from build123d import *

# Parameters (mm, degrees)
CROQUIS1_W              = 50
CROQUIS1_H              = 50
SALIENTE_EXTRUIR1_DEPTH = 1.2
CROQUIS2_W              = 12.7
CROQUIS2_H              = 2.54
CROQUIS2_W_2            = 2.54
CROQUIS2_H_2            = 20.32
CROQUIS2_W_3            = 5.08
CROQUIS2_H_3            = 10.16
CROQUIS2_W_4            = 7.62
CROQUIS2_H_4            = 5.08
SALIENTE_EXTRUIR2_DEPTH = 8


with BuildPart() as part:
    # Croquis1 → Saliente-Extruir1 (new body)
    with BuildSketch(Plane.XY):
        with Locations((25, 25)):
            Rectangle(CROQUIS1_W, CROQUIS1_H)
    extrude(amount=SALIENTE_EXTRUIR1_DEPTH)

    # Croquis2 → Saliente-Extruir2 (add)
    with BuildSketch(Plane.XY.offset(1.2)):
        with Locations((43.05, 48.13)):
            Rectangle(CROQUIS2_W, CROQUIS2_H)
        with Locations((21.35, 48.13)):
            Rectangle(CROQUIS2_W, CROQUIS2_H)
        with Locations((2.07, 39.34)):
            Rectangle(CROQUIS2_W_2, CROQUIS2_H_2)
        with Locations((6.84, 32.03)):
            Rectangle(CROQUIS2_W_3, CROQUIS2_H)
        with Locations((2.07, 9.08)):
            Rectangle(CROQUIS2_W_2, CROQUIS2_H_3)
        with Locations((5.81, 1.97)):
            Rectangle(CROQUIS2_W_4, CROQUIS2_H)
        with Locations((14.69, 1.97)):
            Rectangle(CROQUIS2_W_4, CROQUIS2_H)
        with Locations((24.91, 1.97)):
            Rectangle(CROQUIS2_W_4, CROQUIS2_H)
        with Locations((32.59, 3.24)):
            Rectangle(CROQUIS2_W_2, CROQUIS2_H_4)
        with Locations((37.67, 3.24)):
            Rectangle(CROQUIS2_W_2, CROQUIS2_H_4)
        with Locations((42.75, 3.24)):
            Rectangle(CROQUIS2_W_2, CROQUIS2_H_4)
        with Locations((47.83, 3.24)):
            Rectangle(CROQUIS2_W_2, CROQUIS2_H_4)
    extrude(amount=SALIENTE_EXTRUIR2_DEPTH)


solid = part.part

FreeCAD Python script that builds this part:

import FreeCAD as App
import Part
import Sketcher
from FreeCAD import Vector
Q = App.Units.Quantity

doc = App.newDocument("Part")
params = doc.addObject("Spreadsheet::Sheet", "Params")
for row, (alias, value) in enumerate([
    ("pad1_length", "1.2 mm"),
    ("sketch2_width", "0.5 in"),
    ("sketch2_width2", "0.1 in"),
    ("sketch2_width3", "0.2 in"),
    ("sketch2_width4", "0.3 in"),
    ("sketch2_height", "0.8 in"),
    ("pad2_length", "8 mm"),
], start=1):
    params.set(f"A{row}", alias)
    params.set(f"B{row}", "=" + value)
    params.setAlias(f"B{row}", alias)

body = doc.addObject("PartDesign::Body", "Body")

# Sketch on XY plane
sketch1 = body.newObject("Sketcher::SketchObject", "Sketch")
sketch1.AttachmentSupport = (doc.getObject("XY_Plane"), [""])
sketch1.MapMode = "FlatFace"
sketch1.addGeometry([
    Part.LineSegment(Vector(0, 50, 0), Vector(0, 0, 0)),
    Part.LineSegment(Vector(0, 0, 0), Vector(50, 0, 0)),
    Part.LineSegment(Vector(50, 0, 0), Vector(50, 50, 0)),
    Part.LineSegment(Vector(50, 50, 0), Vector(0, 50, 0)),
], False)
sketch1.addConstraint([
    Sketcher.Constraint("Coincident", 0, 2, 1, 1),
    Sketcher.Constraint("Coincident", 1, 2, 2, 1),
    Sketcher.Constraint("Coincident", 2, 2, 3, 1),
    Sketcher.Constraint("Coincident", 3, 2, 0, 1),
    Sketcher.Constraint("Vertical", 0),
    Sketcher.Constraint("Horizontal", 1),
    Sketcher.Constraint("Vertical", 2),
    Sketcher.Constraint("Horizontal", 3),
    Sketcher.Constraint("Coincident", 0, 2, -1, 1),
    Sketcher.Constraint("Equal", 3, 0),
    Sketcher.Constraint("DistanceX", 1, 1, 1, 2, 50.0),
])
pad1 = body.newObject("PartDesign::Pad", "Pad")
pad1.Profile = sketch1
pad1.setExpression("Length", "Params.pad1_length")

# Sketch on XY plane
sketch2 = body.newObject("Sketcher::SketchObject", "Sketch001")
sketch2.AttachmentSupport = (doc.getObject("XY_Plane"), [""])
sketch2.MapMode = "FlatFace"
sketch2.AttachmentOffset = App.Placement(Vector(0, 0, 1.2), App.Rotation())
sketch2.addGeometry([
    Part.LineSegment(Vector(36.7, 49.4, 0), Vector(36.7, 46.86, 0)),  # 0
    Part.LineSegment(Vector(36.7, 46.86, 0), Vector(49.4, 46.86, 0)),  # 1
    Part.LineSegment(Vector(49.4, 46.86, 0), Vector(49.4, 49.4, 0)),  # 2
    Part.LineSegment(Vector(49.4, 49.4, 0), Vector(36.7, 49.4, 0)),  # 3
    Part.LineSegment(Vector(15, 49.4, 0), Vector(15, 46.86, 0)),  # 4
    Part.LineSegment(Vector(15, 46.86, 0), Vector(27.7, 46.86, 0)),  # 5
    Part.LineSegment(Vector(27.7, 46.86, 0), Vector(27.7, 49.4, 0)),  # 6
    Part.LineSegment(Vector(27.7, 49.4, 0), Vector(15, 49.4, 0)),  # 7
    Part.LineSegment(Vector(0.8, 49.5, 0), Vector(0.8, 29.18, 0)),  # 8
    Part.LineSegment(Vector(0.8, 29.18, 0), Vector(3.34, 29.18, 0)),  # 9
    Part.LineSegment(Vector(3.34, 29.18, 0), Vector(3.34, 49.5, 0)),  # 10
    Part.LineSegment(Vector(3.34, 49.5, 0), Vector(0.8, 49.5, 0)),  # 11
    Part.LineSegment(Vector(4.3, 33.3, 0), Vector(4.3, 30.76, 0)),  # 12
    Part.LineSegment(Vector(4.3, 30.76, 0), Vector(9.38, 30.76, 0)),  # 13
    Part.LineSegment(Vector(9.38, 30.76, 0), Vector(9.38, 33.3, 0)),  # 14
    Part.LineSegment(Vector(9.38, 33.3, 0), Vector(4.3, 33.3, 0)),  # 15
    Part.LineSegment(Vector(0.8, 14.16, 0), Vector(0.8, 4, 0)),  # 16
    Part.LineSegment(Vector(0.8, 4, 0), Vector(3.34, 4, 0)),  # 17
    Part.LineSegment(Vector(3.34, 4, 0), Vector(3.34, 14.16, 0)),  # 18
    Part.LineSegment(Vector(3.34, 14.16, 0), Vector(0.8, 14.16, 0)),  # 19
    Part.LineSegment(Vector(2, 3.24, 0), Vector(2, 0.7, 0)),  # 20
    Part.LineSegment(Vector(2, 0.7, 0), Vector(9.62, 0.7, 0)),  # 21
    Part.LineSegment(Vector(9.62, 0.7, 0), Vector(9.62, 3.24, 0)),  # 22
    Part.LineSegment(Vector(9.62, 3.24, 0), Vector(2, 3.24, 0)),  # 23
    Part.LineSegment(Vector(10.88, 3.24, 0), Vector(10.88, 0.7, 0)),  # 24
    Part.LineSegment(Vector(10.88, 0.7, 0), Vector(18.5, 0.7, 0)),  # 25
    Part.LineSegment(Vector(18.5, 0.7, 0), Vector(18.5, 3.24, 0)),  # 26
    Part.LineSegment(Vector(18.5, 3.24, 0), Vector(10.88, 3.24, 0)),  # 27
    Part.LineSegment(Vector(21.1, 3.24, 0), Vector(21.1, 0.7, 0)),  # 28
    Part.LineSegment(Vector(21.1, 0.7, 0), Vector(28.72, 0.7, 0)),  # 29
    Part.LineSegment(Vector(28.72, 0.7, 0), Vector(28.72, 3.24, 0)),  # 30
    Part.LineSegment(Vector(28.72, 3.24, 0), Vector(21.1, 3.24, 0)),  # 31
    Part.LineSegment(Vector(31.32, 5.78, 0), Vector(31.32, 0.7, 0)),  # 32
    Part.LineSegment(Vector(31.32, 0.7, 0), Vector(33.86, 0.7, 0)),  # 33
    Part.LineSegment(Vector(33.86, 0.7, 0), Vector(33.86, 5.78, 0)),  # 34
    Part.LineSegment(Vector(33.86, 5.78, 0), Vector(31.32, 5.78, 0)),  # 35
    Part.LineSegment(Vector(36.4, 5.78, 0), Vector(36.4, 0.7, 0)),  # 36
    Part.LineSegment(Vector(36.4, 0.7, 0), Vector(38.94, 0.7, 0)),  # 37
    Part.LineSegment(Vector(38.94, 0.7, 0), Vector(38.94, 5.78, 0)),  # 38
    Part.LineSegment(Vector(38.94, 5.78, 0), Vector(36.4, 5.78, 0)),  # 39
    Part.LineSegment(Vector(41.48, 5.78, 0), Vector(41.48, 0.7, 0)),  # 40
    Part.LineSegment(Vector(41.48, 0.7, 0), Vector(44.02, 0.7, 0)),  # 41
    Part.LineSegment(Vector(44.02, 0.7, 0), Vector(44.02, 5.78, 0)),  # 42
    Part.LineSegment(Vector(44.02, 5.78, 0), Vector(41.48, 5.78, 0)),  # 43
    Part.LineSegment(Vector(46.56, 5.78, 0), Vector(46.56, 0.7, 0)),  # 44
    Part.LineSegment(Vector(46.56, 0.7, 0), Vector(49.1, 0.7, 0)),  # 45
    Part.LineSegment(Vector(49.1, 0.7, 0), Vector(49.1, 5.78, 0)),  # 46
    Part.LineSegment(Vector(49.1, 5.78, 0), Vector(46.56, 5.78, 0)),  # 47
], False)
sketch2.addConstraint([
    Sketcher.Constraint("Coincident", 0, 2, 1, 1),
    Sketcher.Constraint("Coincident", 1, 2, 2, 1),
    Sketcher.Constraint("Coincident", 2, 2, 3, 1),
    Sketcher.Constraint("Coincident", 3, 2, 0, 1),
    Sketcher.Constraint("Coincident", 4, 2, 5, 1),
    Sketcher.Constraint("Coincident", 5, 2, 6, 1),
    Sketcher.Constraint("Coincident", 6, 2, 7, 1),
    Sketcher.Constraint("Coincident", 7, 2, 4, 1),
    Sketcher.Constraint("Coincident", 8, 2, 9, 1),
    Sketcher.Constraint("Coincident", 9, 2, 10, 1),
    Sketcher.Constraint("Coincident", 10, 2, 11, 1),
    Sketcher.Constraint("Coincident", 11, 2, 8, 1),
    Sketcher.Constraint("Coincident", 12, 2, 13, 1),
    Sketcher.Constraint("Coincident", 13, 2, 14, 1),
    Sketcher.Constraint("Coincident", 14, 2, 15, 1),
    Sketcher.Constraint("Coincident", 15, 2, 12, 1),
    Sketcher.Constraint("Coincident", 16, 2, 17, 1),
    Sketcher.Constraint("Coincident", 17, 2, 18, 1),
    Sketcher.Constraint("Coincident", 18, 2, 19, 1),
    Sketcher.Constraint("Coincident", 19, 2, 16, 1),
    Sketcher.Constraint("Coincident", 20, 2, 21, 1),
    Sketcher.Constraint("Coincident", 21, 2, 22, 1),
    Sketcher.Constraint("Coincident", 22, 2, 23, 1),
    Sketcher.Constraint("Coincident", 23, 2, 20, 1),
    Sketcher.Constraint("Coincident", 24, 2, 25, 1),
    Sketcher.Constraint("Coincident", 25, 2, 26, 1),
    Sketcher.Constraint("Coincident", 26, 2, 27, 1),
    Sketcher.Constraint("Coincident", 27, 2, 24, 1),
    Sketcher.Constraint("Coincident", 28, 2, 29, 1),
    Sketcher.Constraint("Coincident", 29, 2, 30, 1),
    Sketcher.Constraint("Coincident", 30, 2, 31, 1),
    Sketcher.Constraint("Coincident", 31, 2, 28, 1),
    Sketcher.Constraint("Coincident", 32, 2, 33, 1),
    Sketcher.Constraint("Coincident", 33, 2, 34, 1),
    Sketcher.Constraint("Coincident", 34, 2, 35, 1),
    Sketcher.Constraint("Coincident", 35, 2, 32, 1),
    Sketcher.Constraint("Coincident", 36, 2, 37, 1),
    Sketcher.Constraint("Coincident", 37, 2, 38, 1),
    Sketcher.Constraint("Coincident", 38, 2, 39, 1),
    Sketcher.Constraint("Coincident", 39, 2, 36, 1),
    Sketcher.Constraint("Coincident", 40, 2, 41, 1),
    Sketcher.Constraint("Coincident", 41, 2, 42, 1),
    Sketcher.Constraint("Coincident", 42, 2, 43, 1),
    Sketcher.Constraint("Coincident", 43, 2, 40, 1),
    Sketcher.Constraint("Coincident", 44, 2, 45, 1),
    Sketcher.Constraint("Coincident", 45, 2, 46, 1),
    Sketcher.Constraint("Coincident", 46, 2, 47, 1),
    Sketcher.Constraint("Coincident", 47, 2, 44, 1),
    Sketcher.Constraint("Vertical", 0),
    Sketcher.Constraint("Horizontal", 1),
    Sketcher.Constraint("Vertical", 2),
    Sketcher.Constraint("Horizontal", 3),
    Sketcher.Constraint("Vertical", 4),
    Sketcher.Constraint("Horizontal", 5),
    Sketcher.Constraint("Vertical", 6),
    Sketcher.Constraint("Horizontal", 7),
    Sketcher.Constraint("Vertical", 8),
    Sketcher.Constraint("Horizontal", 9),
    Sketcher.Constraint("Vertical", 10),
    Sketcher.Constraint("Horizontal", 11),
    Sketcher.Constraint("Vertical", 12),
    Sketcher.Constraint("Horizontal", 13),
    Sketcher.Constraint("Vertical", 14),
    Sketcher.Constraint("Horizontal", 15),
    Sketcher.Constraint("Vertical", 16),
    Sketcher.Constraint("Horizontal", 17),
    Sketcher.Constraint("Vertical", 18),
    Sketcher.Constraint("Horizontal", 19),
    Sketcher.Constraint("Vertical", 20),
    Sketcher.Constraint("Horizontal", 21),
    Sketcher.Constraint("Vertical", 22),
    Sketcher.Constraint("Horizontal", 23),
    Sketcher.Constraint("Vertical", 24),
    Sketcher.Constraint("Horizontal", 25),
    Sketcher.Constraint("Vertical", 26),
    Sketcher.Constraint("Horizontal", 27),
    Sketcher.Constraint("Vertical", 28),
    Sketcher.Constraint("Horizontal", 29),
    Sketcher.Constraint("Vertical", 30),
    Sketcher.Constraint("Horizontal", 31),
    Sketcher.Constraint("Vertical", 32),
    Sketcher.Constraint("Horizontal", 33),
    Sketcher.Constraint("Vertical", 34),
    Sketcher.Constraint("Horizontal", 35),
    Sketcher.Constraint("Vertical", 36),
    Sketcher.Constraint("Horizontal", 37),
    Sketcher.Constraint("Vertical", 38),
    Sketcher.Constraint("Horizontal", 39),
    Sketcher.Constraint("Vertical", 40),
    Sketcher.Constraint("Horizontal", 41),
    Sketcher.Constraint("Vertical", 42),
    Sketcher.Constraint("Horizontal", 43),
    Sketcher.Constraint("Vertical", 44),
    Sketcher.Constraint("Horizontal", 45),
    Sketcher.Constraint("Vertical", 46),
    Sketcher.Constraint("Horizontal", 47),
    Sketcher.Constraint("Horizontal", 1, 2, 4, 2),
    Sketcher.Constraint("Horizontal", 3, 2, 6, 2),
    Sketcher.Constraint("Horizontal", 21, 2, 24, 2),
    Sketcher.Constraint("Horizontal", 23, 2, 26, 2),
    Sketcher.Constraint("Horizontal", 25, 2, 28, 2),
    Sketcher.Constraint("Horizontal", 27, 2, 30, 2),
    Sketcher.Constraint("Horizontal", 29, 2, 32, 2),
    Sketcher.Constraint("Horizontal", 33, 2, 36, 2),
    Sketcher.Constraint("Horizontal", 35, 2, 38, 2),
    Sketcher.Constraint("Horizontal", 37, 2, 40, 2),
    Sketcher.Constraint("Horizontal", 39, 2, 42, 2),
    Sketcher.Constraint("Horizontal", 41, 2, 44, 2),
    Sketcher.Constraint("Horizontal", 43, 2, 46, 2),
    Sketcher.Constraint("Vertical", 11, 2, 16, 2),
    Sketcher.Constraint("Vertical", 10, 2, 17, 2),
    Sketcher.Constraint("Equal", 3, 5),
    Sketcher.Constraint("Equal", 23, 25),
    Sketcher.Constraint("Equal", 27, 29),
    Sketcher.Constraint("Equal", 19, 33),
    Sketcher.Constraint("Equal", 35, 37),
    Sketcher.Constraint("Equal", 39, 41),
    Sketcher.Constraint("Equal", 43, 45),
    Sketcher.Constraint("Equal", 47, 0),
    Sketcher.Constraint("Equal", 6, 12),
    Sketcher.Constraint("Equal", 14, 20),
    Sketcher.Constraint("Equal", 15, 32),
    Sketcher.Constraint("DistanceX", 1, 1, 1, 2, Q("0.5 in")),
    Sketcher.Constraint("DistanceX", 9, 1, 9, 2, Q("0.1 in")),
    Sketcher.Constraint("DistanceX", 13, 1, 13, 2, Q("0.2 in")),
    Sketcher.Constraint("DistanceX", 21, 1, 21, 2, Q("0.3 in")),
    Sketcher.Constraint("DistanceY", 8, 2, 8, 1, Q("0.8 in")),
    Sketcher.Constraint("DistanceY", 16, 2, 16, 1, Q("0.4 in")),
    Sketcher.Constraint("DistanceX", 33, 2, 36, 2, Q("0.1 in")),
    Sketcher.Constraint("DistanceX", 37, 2, 40, 2, Q("0.1 in")),
    Sketcher.Constraint("DistanceX", 41, 2, 44, 2, Q("0.1 in")),
    Sketcher.Constraint("DistanceX", -1, 1, 0, 2, 36.7),
    Sketcher.Constraint("DistanceY", -1, 1, 0, 2, 46.86),
    Sketcher.Constraint("DistanceX", -1, 1, 4, 2, 15.0),
    Sketcher.Constraint("DistanceX", -1, 1, 8, 2, 0.8),
    Sketcher.Constraint("DistanceY", -1, 1, 8, 2, 29.18),
    Sketcher.Constraint("DistanceX", -1, 1, 12, 2, 4.3),
    Sketcher.Constraint("DistanceY", -1, 1, 12, 2, 30.76),
    Sketcher.Constraint("DistanceY", -1, 1, 16, 2, 4.0),
    Sketcher.Constraint("DistanceX", -1, 1, 20, 2, 2.0),
    Sketcher.Constraint("DistanceY", -1, 1, 20, 2, 0.7),
    Sketcher.Constraint("DistanceX", -1, 1, 24, 2, 10.88),
    Sketcher.Constraint("DistanceX", -1, 1, 28, 2, 21.1),
    Sketcher.Constraint("DistanceX", -1, 1, 32, 2, 31.32),
])
sketch2.setExpression("Constraints[122]", "Params.sketch2_width")
sketch2.setExpression("Constraints[123]", "Params.sketch2_width2")
sketch2.setExpression("Constraints[124]", "Params.sketch2_width3")
sketch2.setExpression("Constraints[125]", "Params.sketch2_width4")
sketch2.setExpression("Constraints[126]", "Params.sketch2_height")
pad2 = body.newObject("PartDesign::Pad", "Pad001")
pad2.Profile = sketch2
pad2.setExpression("Length", "Params.pad2_length")

doc.recompute()
